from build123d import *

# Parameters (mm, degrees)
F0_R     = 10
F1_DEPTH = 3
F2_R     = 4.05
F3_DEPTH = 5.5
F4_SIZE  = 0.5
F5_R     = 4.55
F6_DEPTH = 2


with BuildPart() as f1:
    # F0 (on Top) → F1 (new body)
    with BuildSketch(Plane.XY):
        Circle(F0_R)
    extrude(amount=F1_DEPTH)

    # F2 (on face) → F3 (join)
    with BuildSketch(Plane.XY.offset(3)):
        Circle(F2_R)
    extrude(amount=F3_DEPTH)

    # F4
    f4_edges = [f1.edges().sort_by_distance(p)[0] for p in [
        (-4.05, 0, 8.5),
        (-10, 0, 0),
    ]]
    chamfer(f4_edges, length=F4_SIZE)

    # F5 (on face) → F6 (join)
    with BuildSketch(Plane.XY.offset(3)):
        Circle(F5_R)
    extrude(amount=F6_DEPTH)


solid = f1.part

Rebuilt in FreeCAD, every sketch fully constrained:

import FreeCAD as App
import Part
import Sketcher
from FreeCAD import Vector


def edges_at(feature, points):
    """Names of the edges that pass closest to the given points."""
    edges = feature.Shape.Edges
    near = lambda p: min(range(len(edges)), key=lambda i: edges[i].distToShape(Part.Vertex(*p))[0])
    return sorted({f"Edge{near(p) + 1}" for p in points})

doc = App.newDocument("Part")
params = doc.addObject("Spreadsheet::Sheet", "Params")
for row, (alias, value) in enumerate([
    ("sketch1_diameter", "20 mm"),
    ("pad1_length", "3 mm"),
    ("sketch2_diameter", "8.1 mm"),
    ("pad2_length", "5.5 mm"),
    ("chamfer_size", "0.5 mm"),
    ("sketch3_diameter", "9.1 mm"),
    ("pad3_length", "2 mm"),
], start=1):
    params.set(f"A{row}", alias)
    params.set(f"B{row}", "=" + value)
    params.setAlias(f"B{row}", alias)

body = doc.addObject("PartDesign::Body", "Body")

# Sketch on XY plane
sketch1 = doc.addObject("Sketcher::SketchObject", "Sketch")
body.addObject(sketch1)
sketch1.AttachmentSupport = (doc.XY_Plane, [""])
sketch1.MapMode = "FlatFace"
sketch1.addGeometry(Part.Circle(Vector(0, 0, 0), Vector(0, 0, 1), 10), False)
sketch1.addConstraint([
    Sketcher.Constraint("Coincident", 0, 3, -1, 1),
    Sketcher.Constraint("Diameter", 0, 20.0),
])
sketch1.setExpression("Constraints[1]", "Params.sketch1_diameter")
pad1 = doc.addObject("PartDesign::Pad", "Pad")
body.addObject(pad1)
pad1.Profile = sketch1
pad1.setExpression("Length", "Params.pad1_length")

# Sketch on XY plane
sketch2 = doc.addObject("Sketcher::SketchObject", "Sketch001")
body.addObject(sketch2)
sketch2.AttachmentSupport = (doc.XY_Plane, [""])
sketch2.MapMode = "FlatFace"
sketch2.AttachmentOffset = App.Placement(Vector(0, 0, 3), App.Rotation())
sketch2.addGeometry(Part.Circle(Vector(0, 0, 0), Vector(0, 0, 1), 4), False)
sketch2.addConstraint([
    Sketcher.Constraint("Coincident", 0, 3, -1, 1),
    Sketcher.Constraint("Diameter", 0, 8.1),
])
sketch2.setExpression("Constraints[1]", "Params.sketch2_diameter")
pad2 = doc.addObject("PartDesign::Pad", "Pad001")
body.addObject(pad2)
pad2.Profile = sketch2
pad2.setExpression("Length", "Params.pad2_length")
doc.recompute()

chamfer = doc.addObject("PartDesign::Chamfer", "Chamfer")
body.addObject(chamfer)
chamfer.Base = (pad2, edges_at(pad2, [(-4.05, 0, 8.5), (-10, 0, 0)]))
chamfer.setExpression("Size", "Params.chamfer_size")

# Sketch on XY plane
sketch3 = doc.addObject("Sketcher::SketchObject", "Sketch002")
body.addObject(sketch3)
sketch3.AttachmentSupport = (doc.XY_Plane, [""])
sketch3.MapMode = "FlatFace"
sketch3.AttachmentOffset = App.Placement(Vector(0, 0, 3), App.Rotation())
sketch3.addGeometry(Part.Circle(Vector(0, 0, 0), Vector(0, 0, 1), 4.5), False)
sketch3.addConstraint([
    Sketcher.Constraint("Coincident", 0, 3, -1, 1),
    Sketcher.Constraint("Diameter", 0, 9.1),
])
sketch3.setExpression("Constraints[1]", "Params.sketch3_diameter")
pad3 = doc.addObject("PartDesign::Pad", "Pad002")
body.addObject(pad3)
pad3.Profile = sketch3
pad3.setExpression("Length", "Params.pad3_length")

doc.recompute()
